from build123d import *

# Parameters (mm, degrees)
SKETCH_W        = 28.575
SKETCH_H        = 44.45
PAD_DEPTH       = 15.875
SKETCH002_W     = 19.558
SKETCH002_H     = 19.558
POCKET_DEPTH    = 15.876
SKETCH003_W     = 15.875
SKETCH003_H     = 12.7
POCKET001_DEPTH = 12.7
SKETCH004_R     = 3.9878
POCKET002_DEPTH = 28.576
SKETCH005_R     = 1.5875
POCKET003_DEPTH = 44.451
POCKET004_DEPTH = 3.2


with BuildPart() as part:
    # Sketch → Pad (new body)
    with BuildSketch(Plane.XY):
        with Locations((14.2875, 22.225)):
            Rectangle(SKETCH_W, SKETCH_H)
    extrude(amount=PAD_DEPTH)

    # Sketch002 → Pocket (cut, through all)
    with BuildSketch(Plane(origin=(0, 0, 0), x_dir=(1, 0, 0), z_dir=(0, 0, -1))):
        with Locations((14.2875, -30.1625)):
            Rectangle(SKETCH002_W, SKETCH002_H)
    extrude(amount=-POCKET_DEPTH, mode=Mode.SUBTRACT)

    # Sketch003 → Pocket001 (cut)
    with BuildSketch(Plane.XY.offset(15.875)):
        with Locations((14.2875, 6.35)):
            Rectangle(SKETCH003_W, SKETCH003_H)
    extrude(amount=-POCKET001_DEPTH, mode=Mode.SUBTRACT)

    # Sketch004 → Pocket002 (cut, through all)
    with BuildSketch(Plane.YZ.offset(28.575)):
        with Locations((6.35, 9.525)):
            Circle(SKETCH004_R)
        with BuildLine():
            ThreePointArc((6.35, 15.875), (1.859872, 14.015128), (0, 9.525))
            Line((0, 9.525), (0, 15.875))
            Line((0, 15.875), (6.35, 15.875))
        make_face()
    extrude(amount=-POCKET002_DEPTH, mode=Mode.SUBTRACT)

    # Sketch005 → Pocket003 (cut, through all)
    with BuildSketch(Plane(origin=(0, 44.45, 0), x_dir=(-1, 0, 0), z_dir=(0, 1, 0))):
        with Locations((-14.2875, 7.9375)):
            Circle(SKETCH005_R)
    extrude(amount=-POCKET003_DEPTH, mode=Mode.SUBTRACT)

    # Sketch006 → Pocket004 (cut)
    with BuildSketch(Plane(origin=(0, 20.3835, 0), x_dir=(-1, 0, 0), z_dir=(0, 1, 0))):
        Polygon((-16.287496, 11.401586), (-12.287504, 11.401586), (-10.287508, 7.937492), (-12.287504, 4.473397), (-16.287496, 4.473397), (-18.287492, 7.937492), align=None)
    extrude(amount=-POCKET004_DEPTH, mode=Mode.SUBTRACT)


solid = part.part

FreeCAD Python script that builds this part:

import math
import FreeCAD as App
import Part
import Sketcher
from FreeCAD import Vector
Q = App.Units.Quantity

doc = App.newDocument("Part")
body = doc.addObject("PartDesign::Body", "Body")

# Sketch on XY plane
sketch1 = doc.addObject("Sketcher::SketchObject", "Sketch")
body.addObject(sketch1)
sketch1.AttachmentSupport = (doc.XY_Plane, [""])
sketch1.MapMode = "FlatFace"
sketch1.addGeometry(Part.LineSegment(Vector(0, 44, 0), Vector(0, 0, 0)), False)
sketch1.addGeometry(Part.LineSegment(Vector(0, 0, 0), Vector(29, 0, 0)), False)
sketch1.addGeometry(Part.LineSegment(Vector(29, 0, 0), Vector(29, 44, 0)), False)
sketch1.addGeometry(Part.LineSegment(Vector(29, 44, 0), Vector(0, 44, 0)), False)
sketch1.addConstraint(Sketcher.Constraint("Coincident", 0, 2, 1, 1))
sketch1.addConstraint(Sketcher.Constraint("Coincident", 1, 2, 2, 1))
sketch1.addConstraint(Sketcher.Constraint("Coincident", 2, 2, 3, 1))
sketch1.addConstraint(Sketcher.Constraint("Coincident", 3, 2, 0, 1))
sketch1.addConstraint(Sketcher.Constraint("Vertical", 0))
sketch1.addConstraint(Sketcher.Constraint("Horizontal", 1))
sketch1.addConstraint(Sketcher.Constraint("Vertical", 2))
sketch1.addConstraint(Sketcher.Constraint("Horizontal", 3))
sketch1.addConstraint(Sketcher.Constraint("Coincident", 0, 2, -1, 1))
sketch1.addConstraint(Sketcher.Constraint("DistanceY", 0, 2, 0, 1, Q("1.75 in")))
sketch1.addConstraint(Sketcher.Constraint("DistanceX", 1, 1, 1, 2, Q("1.125 in")))
pad1 = doc.addObject("PartDesign::Pad", "Pad")
body.addObject(pad1)
pad1.Profile = sketch1
pad1.Length = Q("0.625 in")

# Sketch on XY plane
sketch2 = doc.addObject("Sketcher::SketchObject", "Sketch001")
body.addObject(sketch2)
sketch2.AttachmentSupport = (doc.XY_Plane, [""])
sketch2.MapMode = "FlatFace"
sketch2.addGeometry(Part.LineSegment(Vector(5, 20, 0), Vector(5, 40, 0)), False)
sketch2.addGeometry(Part.LineSegment(Vector(5, 40, 0), Vector(24, 40, 0)), False)
sketch2.addGeometry(Part.LineSegment(Vector(24, 40, 0), Vector(24, 20, 0)), False)
sketch2.addGeometry(Part.LineSegment(Vector(24, 20, 0), Vector(5, 20, 0)), False)
sketch2.addConstraint(Sketcher.Constraint("Coincident", 0, 2, 1, 1))
sketch2.addConstraint(Sketcher.Constraint("Coincident", 1, 2, 2, 1))
sketch2.addConstraint(Sketcher.Constraint("Coincident", 2, 2, 3, 1))
sketch2.addConstraint(Sketcher.Constraint("Coincident", 3, 2, 0, 1))
sketch2.addConstraint(Sketcher.Constraint("Vertical", 0))
sketch2.addConstraint(Sketcher.Constraint("Horizontal", 1))
sketch2.addConstraint(Sketcher.Constraint("Vertical", 2))
sketch2.addConstraint(Sketcher.Constraint("Horizontal", 3))
sketch2.addConstraint(Sketcher.Constraint("Equal", 3, 0))
sketch2.addConstraint(Sketcher.Constraint("DistanceX", 1, 1, 1, 2, Q("0.77 in")))
sketch2.addConstraint(Sketcher.Constraint("DistanceX", -1, 1, 0, 2, Q("0.1775 in")))
sketch2.addConstraint(Sketcher.Constraint("DistanceY", -1, 1, 0, 2, Q("1.5725 in")))
pocket1 = doc.addObject("PartDesign::Pocket", "Pocket")
body.addObject(pocket1)
pocket1.Profile = sketch2
pocket1.Type = "ThroughAll"
pocket1.Reversed = True

# Sketch on XY plane
sketch3 = doc.addObject("Sketcher::SketchObject", "Sketch002")
body.addObject(sketch3)
sketch3.AttachmentSupport = (doc.XY_Plane, [""])
sketch3.MapMode = "FlatFace"
sketch3.AttachmentOffset = App.Placement(Vector(0, 0, 0.625 * 25.4), App.Rotation())
sketch3.addGeometry(Part.LineSegment(Vector(6, 13, 0), Vector(6, 0, 0)), False)
sketch3.addGeometry(Part.LineSegment(Vector(6, 0, 0), Vector(22, 0, 0)), False)
sketch3.addGeometry(Part.LineSegment(Vector(22, 0, 0), Vector(22, 13, 0)), False)
sketch3.addGeometry(Part.LineSegment(Vector(22, 13, 0), Vector(6, 13, 0)), False)
sketch3.addConstraint(Sketcher.Constraint("Coincident", 0, 2, 1, 1))
sketch3.addConstraint(Sketcher.Constraint("Coincident", 1, 2, 2, 1))
sketch3.addConstraint(Sketcher.Constraint("Coincident", 2, 2, 3, 1))
sketch3.addConstraint(Sketcher.Constraint("Coincident", 3, 2, 0, 1))
sketch3.addConstraint(Sketcher.Constraint("Vertical", 0))
sketch3.addConstraint(Sketcher.Constraint("Horizontal", 1))
sketch3.addConstraint(Sketcher.Constraint("Vertical", 2))
sketch3.addConstraint(Sketcher.Constraint("Horizontal", 3))
sketch3.addConstraint(Sketcher.Constraint("PointOnObject", 0, 2, -1))
sketch3.addConstraint(Sketcher.Constraint("DistanceY", 0, 2, 0, 1, Q("0.5 in")))
sketch3.addConstraint(Sketcher.Constraint("DistanceX", 1, 1, 1, 2, Q("0.625 in")))
sketch3.addConstraint(Sketcher.Constraint("DistanceX", -1, 1, 0, 2, Q("0.25 in")))
pocket2 = doc.addObject("PartDesign::Pocket", "Pocket001")
body.addObject(pocket2)
pocket2.Profile = sketch3
pocket2.Length = Q("0.5 in")

# Sketch on YZ plane
sketch4 = doc.addObject("Sketcher::SketchObject", "Sketch003")
body.addObject(sketch4)
sketch4.AttachmentSupport = (doc.YZ_Plane, [""])
sketch4.MapMode = "FlatFace"
sketch4.AttachmentOffset = App.Placement(Vector(0, 0, 1.125 * 25.4), App.Rotation())
sketch4.addGeometry(Part.Circle(Vector(6.3, 9.5, 0), Vector(0, 0, 1), 4), False)
sketch4.addGeometry(Part.ArcOfCircle(Part.Circle(Vector(6.4, 9.5, 0), Vector(0, 0, 1), 6.4), math.radians(90), math.radians(180)), False)
sketch4.addGeometry(Part.LineSegment(Vector(6.3, 15.9, 0), Vector(0, 15.9, 0)), False)
sketch4.addGeometry(Part.LineSegment(Vector(0, 15.9, 0), Vector(0, 9.5, 0)), False)
sketch4.addConstraint(Sketcher.Constraint("Tangent", 1, 1, 2, 1))
sketch4.addConstraint(Sketcher.Constraint("Coincident", 2, 2, 3, 1))
sketch4.addConstraint(Sketcher.Constraint("Tangent", 3, 2, 1, 2))
sketch4.addConstraint(Sketcher.Constraint("Horizontal", 2))
sketch4.addConstraint(Sketcher.Constraint("Vertical", 3))
sketch4.addConstraint(Sketcher.Constraint("Coincident", 1, 3, 0, 3))
sketch4.addConstraint(Sketcher.Constraint("PointOnObject", 2, 2, -2))
sketch4.addConstraint(Sketcher.Constraint("Radius", 1, Q("0.25 in")))
sketch4.addConstraint(Sketcher.Constraint("Diameter", 0, Q("0.314 in")))
sketch4.addConstraint(Sketcher.Constraint("DistanceY", -1, 1, 0, 3, Q("0.375 in")))
pocket3 = doc.addObject("PartDesign::Pocket", "Pocket002")
body.addObject(pocket3)
pocket3.Profile = sketch4
pocket3.Type = "ThroughAll"

# Sketch on XZ plane
sketch5 = doc.addObject("Sketcher::SketchObject", "Sketch004")
body.addObject(sketch5)
sketch5.AttachmentSupport = (doc.XZ_Plane, [""])
sketch5.MapMode = "FlatFace"
sketch5.AttachmentOffset = App.Placement(Vector(0, 0, -1.75 * 25.4), App.Rotation())
sketch5.addGeometry(Part.Circle(Vector(14.3, 7.9, 0), Vector(0, 0, 1), 1.6), False)
sketch5.addConstraint(Sketcher.Constraint("Diameter", 0, Q("0.125 in")))
sketch5.addConstraint(Sketcher.Constraint("DistanceX", -1, 1, 0, 3, Q("0.5625 in")))
sketch5.addConstraint(Sketcher.Constraint("DistanceY", -1, 1, 0, 3, Q("0.3125 in")))
pocket4 = doc.addObject("PartDesign::Pocket", "Pocket003")
body.addObject(pocket4)
pocket4.Profile = sketch5
pocket4.Type = "ThroughAll"
pocket4.Reversed = True

# Sketch on XZ plane
sketch6 = doc.addObject("Sketcher::SketchObject", "Sketch005")
body.addObject(sketch6)
sketch6.AttachmentSupport = (doc.XZ_Plane, [""])
sketch6.MapMode = "FlatFace"
sketch6.AttachmentOffset = App.Placement(Vector(0, 0, -0.8025 * 25.4), App.Rotation())
sketch6.addGeometry(Part.LineSegment(Vector(12.3, 11.4, 0), Vector(16.3, 11.4, 0)), False)
sketch6.addGeometry(Part.LineSegment(Vector(16.3, 11.4, 0), Vector(18.3, 7.9, 0)), False)
sketch6.addGeometry(Part.LineSegment(Vector(18.3, 7.9, 0), Vector(16.3, 4.5, 0)), False)
sketch6.addGeometry(Part.LineSegment(Vector(16.3, 4.5, 0), Vector(12.3, 4.5, 0)), False)
sketch6.addGeometry(Part.LineSegment(Vector(12.3, 4.5, 0), Vector(10.3, 7.9, 0)), False)
sketch6.addGeometry(Part.LineSegment(Vector(10.3, 7.9, 0), Vector(12.3, 11.4, 0)), False)
sketch6.addConstraint(Sketcher.Constraint("Coincident", 0, 2, 1, 1))
sketch6.addConstraint(Sketcher.Constraint("Coincident", 1, 2, 2, 1))
sketch6.addConstraint(Sketcher.Constraint("Coincident", 2, 2, 3, 1))
sketch6.addConstraint(Sketcher.Constraint("Coincident", 3, 2, 4, 1))
sketch6.addConstraint(Sketcher.Constraint("Coincident", 4, 2, 5, 1))
sketch6.addConstraint(Sketcher.Constraint("Coincident", 5, 2, 0, 1))
sketch6.addConstraint(Sketcher.Constraint("Horizontal", 0))
sketch6.addConstraint(Sketcher.Constraint("Horizontal", 3))
sketch6.addConstraint(Sketcher.Constraint("Parallel", 1, 4))
sketch6.addConstraint(Sketcher.Constraint("Parallel", 2, 5))
sketch6.addConstraint(Sketcher.Constraint("Horizontal", 1, 2, 4, 2))
sketch6.addConstraint(Sketcher.Constraint("Vertical", 0, 2, 2, 2))
sketch6.addConstraint(Sketcher.Constraint("Vertical", 3, 2, 5, 2))
sketch6.addConstraint(Sketcher.Constraint("Angle", 1, Q("-59.999995 deg")))
sketch6.addConstraint(Sketcher.Constraint("Distance", 1, Q("3.999991 mm")))
sketch6.addConstraint(Sketcher.Constraint("DistanceX", 0, 1, 0, 2, Q("3.999992 mm")))
sketch6.addConstraint(Sketcher.Constraint("DistanceY", -1, 1, 1, 2, Q("7.937492 mm")))
sketch6.addConstraint(Sketcher.Constraint("DistanceX", -1, 1, 4, 2, Q("10.287508 mm")))
pocket5 = doc.addObject("PartDesign::Pocket", "Pocket004")
body.addObject(pocket5)
pocket5.Profile = sketch6
pocket5.Length = 3.2
pocket5.Reversed = True

doc.recompute()
